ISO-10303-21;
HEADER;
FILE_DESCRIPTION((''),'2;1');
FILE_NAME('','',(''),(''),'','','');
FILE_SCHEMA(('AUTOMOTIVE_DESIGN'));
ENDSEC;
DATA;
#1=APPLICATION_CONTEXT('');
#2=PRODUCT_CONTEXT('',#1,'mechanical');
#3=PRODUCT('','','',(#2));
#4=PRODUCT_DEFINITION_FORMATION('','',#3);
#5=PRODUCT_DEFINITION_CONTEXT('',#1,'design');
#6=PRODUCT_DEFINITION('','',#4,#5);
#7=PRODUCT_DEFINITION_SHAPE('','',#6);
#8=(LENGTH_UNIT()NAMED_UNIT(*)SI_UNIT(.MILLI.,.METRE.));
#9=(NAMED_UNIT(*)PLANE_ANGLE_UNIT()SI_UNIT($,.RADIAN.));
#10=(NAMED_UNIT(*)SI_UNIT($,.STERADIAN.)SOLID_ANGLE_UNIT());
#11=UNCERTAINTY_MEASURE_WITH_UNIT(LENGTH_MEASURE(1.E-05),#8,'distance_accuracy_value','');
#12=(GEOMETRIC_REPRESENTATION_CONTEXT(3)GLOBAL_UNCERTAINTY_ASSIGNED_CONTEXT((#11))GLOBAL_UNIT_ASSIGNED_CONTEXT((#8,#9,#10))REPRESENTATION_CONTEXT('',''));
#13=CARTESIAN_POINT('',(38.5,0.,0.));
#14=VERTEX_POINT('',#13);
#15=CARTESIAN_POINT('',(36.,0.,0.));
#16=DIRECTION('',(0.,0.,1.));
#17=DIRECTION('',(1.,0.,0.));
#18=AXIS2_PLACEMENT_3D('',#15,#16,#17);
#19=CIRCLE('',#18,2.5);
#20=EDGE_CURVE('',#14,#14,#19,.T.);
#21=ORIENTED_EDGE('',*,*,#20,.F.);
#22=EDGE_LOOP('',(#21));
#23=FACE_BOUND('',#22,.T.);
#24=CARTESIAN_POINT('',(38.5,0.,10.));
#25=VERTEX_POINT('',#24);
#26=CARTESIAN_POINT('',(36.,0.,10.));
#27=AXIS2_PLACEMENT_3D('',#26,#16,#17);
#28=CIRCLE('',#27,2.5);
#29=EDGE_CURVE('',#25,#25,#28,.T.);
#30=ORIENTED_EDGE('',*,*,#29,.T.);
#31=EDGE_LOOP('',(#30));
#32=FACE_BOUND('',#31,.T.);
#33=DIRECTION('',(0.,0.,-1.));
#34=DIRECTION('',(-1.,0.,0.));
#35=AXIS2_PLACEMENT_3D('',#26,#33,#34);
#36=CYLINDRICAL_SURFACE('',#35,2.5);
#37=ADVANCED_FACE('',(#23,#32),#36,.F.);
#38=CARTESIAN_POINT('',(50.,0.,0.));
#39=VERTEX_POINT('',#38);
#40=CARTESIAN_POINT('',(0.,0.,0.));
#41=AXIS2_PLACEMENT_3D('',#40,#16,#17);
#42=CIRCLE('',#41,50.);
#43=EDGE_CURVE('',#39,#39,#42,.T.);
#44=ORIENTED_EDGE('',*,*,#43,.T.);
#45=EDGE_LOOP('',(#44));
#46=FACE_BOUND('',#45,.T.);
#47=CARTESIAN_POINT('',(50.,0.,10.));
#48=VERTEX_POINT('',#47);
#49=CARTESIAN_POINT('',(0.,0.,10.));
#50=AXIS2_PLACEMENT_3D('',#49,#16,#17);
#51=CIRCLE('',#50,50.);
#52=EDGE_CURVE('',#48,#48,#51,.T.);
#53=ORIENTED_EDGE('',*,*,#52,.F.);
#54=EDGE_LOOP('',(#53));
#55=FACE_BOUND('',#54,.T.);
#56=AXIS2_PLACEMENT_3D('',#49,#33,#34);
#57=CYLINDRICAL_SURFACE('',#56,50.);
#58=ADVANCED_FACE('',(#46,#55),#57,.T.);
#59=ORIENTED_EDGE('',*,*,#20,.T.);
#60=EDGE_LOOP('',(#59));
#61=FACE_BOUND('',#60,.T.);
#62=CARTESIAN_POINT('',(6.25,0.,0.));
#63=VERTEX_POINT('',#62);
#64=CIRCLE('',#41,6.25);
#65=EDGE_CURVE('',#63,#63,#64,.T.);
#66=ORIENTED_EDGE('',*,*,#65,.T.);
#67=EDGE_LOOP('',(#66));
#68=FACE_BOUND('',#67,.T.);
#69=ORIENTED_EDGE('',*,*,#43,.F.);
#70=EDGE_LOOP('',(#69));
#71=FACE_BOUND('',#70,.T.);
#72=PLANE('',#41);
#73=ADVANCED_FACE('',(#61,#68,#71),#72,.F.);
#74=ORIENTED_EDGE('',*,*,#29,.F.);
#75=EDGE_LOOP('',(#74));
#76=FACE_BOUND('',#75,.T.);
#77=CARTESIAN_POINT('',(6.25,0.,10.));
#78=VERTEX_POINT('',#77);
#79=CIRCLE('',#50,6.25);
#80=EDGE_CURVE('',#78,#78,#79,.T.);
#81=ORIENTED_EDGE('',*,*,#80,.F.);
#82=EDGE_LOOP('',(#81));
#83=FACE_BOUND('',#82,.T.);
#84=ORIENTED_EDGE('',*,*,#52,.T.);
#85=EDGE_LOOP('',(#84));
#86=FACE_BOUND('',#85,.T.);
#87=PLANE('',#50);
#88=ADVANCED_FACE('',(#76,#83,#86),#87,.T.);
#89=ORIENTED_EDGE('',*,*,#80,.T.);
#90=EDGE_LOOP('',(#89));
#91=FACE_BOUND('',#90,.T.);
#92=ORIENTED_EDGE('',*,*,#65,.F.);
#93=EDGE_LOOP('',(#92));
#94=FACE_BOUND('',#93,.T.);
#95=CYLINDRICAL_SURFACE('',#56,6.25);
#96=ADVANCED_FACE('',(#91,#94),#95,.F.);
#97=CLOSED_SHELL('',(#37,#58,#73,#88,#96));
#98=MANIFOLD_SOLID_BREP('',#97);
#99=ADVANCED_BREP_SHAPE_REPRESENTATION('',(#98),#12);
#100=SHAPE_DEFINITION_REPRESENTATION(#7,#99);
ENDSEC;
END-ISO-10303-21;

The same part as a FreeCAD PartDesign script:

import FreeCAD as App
import Part
import Sketcher
from FreeCAD import Vector

doc = App.newDocument("Part")
params = doc.addObject("Spreadsheet::Sheet", "Params")
for row, (alias, value) in enumerate([
    ("sketch1_diameter", "100 mm"),
    ("sketch1_diameter2", "5 mm"),
    ("sketch1_diameter3", "12.5 mm"),
    ("pad1_length", "10 mm"),
], start=1):
    params.set(f"A{row}", alias)
    params.set(f"B{row}", "=" + value)
    params.setAlias(f"B{row}", alias)

body = doc.addObject("PartDesign::Body", "Body")

# Sketch on XY plane
sketch1 = doc.addObject("Sketcher::SketchObject", "Sketch")
body.addObject(sketch1)
sketch1.AttachmentSupport = (doc.XY_Plane, [""])
sketch1.MapMode = "FlatFace"
sketch1.addGeometry([
    Part.Circle(Vector(0, 0, 0), Vector(0, 0, 1), 50),
    Part.Circle(Vector(0, 0, 0), Vector(0, 0, 1), 6.2),
    Part.Circle(Vector(36, 0, 0), Vector(0, 0, 1), 2.5),
], False)
sketch1.addConstraint([
    Sketcher.Constraint("Coincident", 0, 3, -1, 1),
    Sketcher.Constraint("Coincident", 1, 3, -1, 1),
    Sketcher.Constraint("PointOnObject", 2, 3, -1),
    Sketcher.Constraint("Diameter", 0, 100.0),
    Sketcher.Constraint("Diameter", 2, 5.0),
    Sketcher.Constraint("Diameter", 1, 12.5),
    Sketcher.Constraint("DistanceX", -1, 1, 2, 3, 36.0),
])
sketch1.setExpression("Constraints[3]", "Params.sketch1_diameter")
sketch1.setExpression("Constraints[4]", "Params.sketch1_diameter2")
sketch1.setExpression("Constraints[5]", "Params.sketch1_diameter3")
pad1 = doc.addObject("PartDesign::Pad", "Pad")
body.addObject(pad1)
pad1.Profile = sketch1
pad1.setExpression("Length", "Params.pad1_length")

doc.recompute()
